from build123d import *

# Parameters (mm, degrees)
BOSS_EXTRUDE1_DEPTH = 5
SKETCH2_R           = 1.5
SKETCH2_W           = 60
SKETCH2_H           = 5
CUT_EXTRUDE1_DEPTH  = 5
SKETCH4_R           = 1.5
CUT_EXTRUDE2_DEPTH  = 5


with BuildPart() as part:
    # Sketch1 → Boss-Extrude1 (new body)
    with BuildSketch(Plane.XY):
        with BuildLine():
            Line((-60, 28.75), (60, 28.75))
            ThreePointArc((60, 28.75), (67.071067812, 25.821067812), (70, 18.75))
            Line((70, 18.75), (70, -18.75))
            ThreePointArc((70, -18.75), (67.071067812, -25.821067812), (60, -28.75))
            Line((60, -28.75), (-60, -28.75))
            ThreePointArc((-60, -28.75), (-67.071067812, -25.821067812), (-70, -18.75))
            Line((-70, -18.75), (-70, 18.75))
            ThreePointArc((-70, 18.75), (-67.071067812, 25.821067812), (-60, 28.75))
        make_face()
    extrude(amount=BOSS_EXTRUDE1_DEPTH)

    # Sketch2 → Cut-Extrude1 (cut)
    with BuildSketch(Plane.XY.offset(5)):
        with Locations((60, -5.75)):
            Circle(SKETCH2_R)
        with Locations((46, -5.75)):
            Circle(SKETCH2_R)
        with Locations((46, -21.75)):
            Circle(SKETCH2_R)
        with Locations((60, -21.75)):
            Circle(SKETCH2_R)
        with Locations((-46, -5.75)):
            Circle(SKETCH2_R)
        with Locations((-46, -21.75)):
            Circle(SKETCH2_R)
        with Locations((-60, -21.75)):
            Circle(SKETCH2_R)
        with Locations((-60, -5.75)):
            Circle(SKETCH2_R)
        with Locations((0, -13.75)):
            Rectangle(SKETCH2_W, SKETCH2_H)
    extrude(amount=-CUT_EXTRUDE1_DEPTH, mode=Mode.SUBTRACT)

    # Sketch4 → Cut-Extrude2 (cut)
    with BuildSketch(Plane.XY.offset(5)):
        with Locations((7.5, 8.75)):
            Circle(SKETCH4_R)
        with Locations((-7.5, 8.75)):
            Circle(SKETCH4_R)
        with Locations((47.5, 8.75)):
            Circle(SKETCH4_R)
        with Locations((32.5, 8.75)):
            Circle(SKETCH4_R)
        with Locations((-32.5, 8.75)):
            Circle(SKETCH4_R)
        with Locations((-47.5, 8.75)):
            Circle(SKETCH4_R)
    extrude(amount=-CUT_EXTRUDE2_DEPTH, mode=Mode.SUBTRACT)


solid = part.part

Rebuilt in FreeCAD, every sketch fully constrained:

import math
import FreeCAD as App
import Part
import Sketcher
from FreeCAD import Vector
Q = App.Units.Quantity

doc = App.newDocument("Part")
params = doc.addObject("Spreadsheet::Sheet", "Params")
for row, (alias, value) in enumerate([
    ("sketch1_radius", "10 mm"),
    ("sketch1_width", "120 mm"),
    ("sketch1_height", "37.5 mm"),
    ("pad1_length", "5 mm"),
    ("sketch2_diameter", "3 mm"),
    ("sketch2_width", "60 mm"),
    ("sketch2_height", "5 mm"),
    ("pocket1_length", "5 mm"),
    ("sketch3_diameter", "3 mm"),
    ("pocket2_length", "5 mm"),
], start=1):
    params.set(f"A{row}", alias)
    params.set(f"B{row}", "=" + value)
    params.setAlias(f"B{row}", alias)

body = doc.addObject("PartDesign::Body", "Body")

# Sketch on XY plane
sketch1 = body.newObject("Sketcher::SketchObject", "Sketch")
sketch1.AttachmentSupport = (doc.getObject("XY_Plane"), [""])
sketch1.MapMode = "FlatFace"
sketch1.addGeometry([
    Part.LineSegment(Vector(60, 29, 0), Vector(-60, 29, 0)),  # 0
    Part.ArcOfCircle(Part.Circle(Vector(-60, 19, 0), Vector(0, 0, 1), 10), math.radians(90), math.radians(180)),  # 1
    Part.LineSegment(Vector(-70, 19, 0), Vector(-70, -19, 0)),  # 2
    Part.ArcOfCircle(Part.Circle(Vector(-60, -19, 0), Vector(0, 0, 1), 10), math.radians(180), math.radians(270)),  # 3
    Part.LineSegment(Vector(-60, -29, 0), Vector(60, -29, 0)),  # 4
    Part.ArcOfCircle(Part.Circle(Vector(60, -19, 0), Vector(0, 0, 1), 10), math.radians(-90), math.radians(0)),  # 5
    Part.LineSegment(Vector(70, -19, 0), Vector(70, 19, 0)),  # 6
    Part.ArcOfCircle(Part.Circle(Vector(60, 19, 0), Vector(0, 0, 1), 10), math.radians(0), math.radians(90)),  # 7
], False)
sketch1.addConstraint([
    Sketcher.Constraint("Tangent", 0, 2, 1, 1),
    Sketcher.Constraint("Tangent", 1, 2, 2, 1),
    Sketcher.Constraint("Tangent", 2, 2, 3, 1),
    Sketcher.Constraint("Tangent", 3, 2, 4, 1),
    Sketcher.Constraint("Tangent", 4, 2, 5, 1),
    Sketcher.Constraint("Tangent", 5, 2, 6, 1),
    Sketcher.Constraint("Tangent", 6, 2, 7, 1),
    Sketcher.Constraint("Tangent", 7, 2, 0, 1),
    Sketcher.Constraint("Horizontal", 0),
    Sketcher.Constraint("Vertical", 2),
    Sketcher.Constraint("Horizontal", 4),
    Sketcher.Constraint("Vertical", 6),
    Sketcher.Constraint("Equal", 1, 3),
    Sketcher.Constraint("Equal", 3, 5),
    Sketcher.Constraint("Equal", 5, 7),
    Sketcher.Constraint("Symmetric", 1, 3, 5, 3, -1, 1),
    Sketcher.Constraint("Radius", 1, Q("10 mm")),
    Sketcher.Constraint("DistanceX", 0, 2, 0, 1, Q("120 mm")),
    Sketcher.Constraint("DistanceY", 2, 2, 2, 1, Q("37.5 mm")),
])
sketch1.setExpression("Constraints[16]", "Params.sketch1_radius")
sketch1.setExpression("Constraints[17]", "Params.sketch1_width")
sketch1.setExpression("Constraints[18]", "Params.sketch1_height")
pad1 = body.newObject("PartDesign::Pad", "Pad")
pad1.Profile = sketch1
pad1.setExpression("Length", "Params.pad1_length")

# Sketch on XY plane
sketch2 = body.newObject("Sketcher::SketchObject", "Sketch001")
sketch2.AttachmentSupport = (doc.getObject("XY_Plane"), [""])
sketch2.MapMode = "FlatFace"
sketch2.AttachmentOffset = App.Placement(Vector(0, 0, 5), App.Rotation())
sketch2.addGeometry([
    Part.Circle(Vector(60, -5.8, 0), Vector(0, 0, 1), 1.5),  # 0
    Part.Circle(Vector(46, -5.8, 0), Vector(0, 0, 1), 1.5),  # 1
    Part.Circle(Vector(46, -21.8, 0), Vector(0, 0, 1), 1.5),  # 2
    Part.Circle(Vector(60, -21.8, 0), Vector(0, 0, 1), 1.5),  # 3
    Part.Circle(Vector(-46, -5.8, 0), Vector(0, 0, 1), 1.5),  # 4
    Part.Circle(Vector(-46, -21.8, 0), Vector(0, 0, 1), 1.5),  # 5
    Part.Circle(Vector(-60, -21.8, 0), Vector(0, 0, 1), 1.5),  # 6
    Part.Circle(Vector(-60, -5.8, 0), Vector(0, 0, 1), 1.5),  # 7
    Part.LineSegment(Vector(-30, -11.2, 0), Vector(-30, -16.2, 0)),  # 8
    Part.LineSegment(Vector(-30, -16.2, 0), Vector(30, -16.2, 0)),  # 9
    Part.LineSegment(Vector(30, -16.2, 0), Vector(30, -11.2, 0)),  # 10
    Part.LineSegment(Vector(30, -11.2, 0), Vector(-30, -11.2, 0)),  # 11
], False)
sketch2.addConstraint([
    Sketcher.Constraint("Coincident", 8, 2, 9, 1),
    Sketcher.Constraint("Coincident", 9, 2, 10, 1),
    Sketcher.Constraint("Coincident", 10, 2, 11, 1),
    Sketcher.Constraint("Coincident", 11, 2, 8, 1),
    Sketcher.Constraint("Vertical", 8),
    Sketcher.Constraint("Horizontal", 9),
    Sketcher.Constraint("Vertical", 10),
    Sketcher.Constraint("Horizontal", 11),
    Sketcher.Constraint("Equal", 0, 1),
    Sketcher.Constraint("Equal", 1, 2),
    Sketcher.Constraint("Equal", 2, 3),
    Sketcher.Constraint("Equal", 3, 4),
    Sketcher.Constraint("Equal", 4, 5),
    Sketcher.Constraint("Equal", 5, 6),
    Sketcher.Constraint("Equal", 6, 7),
    Sketcher.Constraint("Symmetric", 1, 3, 4, 3, -2),
    Sketcher.Constraint("Symmetric", 2, 3, 5, 3, -2),
    Sketcher.Constraint("Symmetric", 3, 3, 6, 3, -2),
    Sketcher.Constraint("Symmetric", 0, 3, 7, 3, -2),
    Sketcher.Constraint("Horizontal", 0, 3, 1, 3),
    Sketcher.Constraint("Horizontal", 2, 3, 3, 3),
    Sketcher.Constraint("Vertical", 1, 3, 2, 3),
    Sketcher.Constraint("Vertical", 0, 3, 3, 3),
    Sketcher.Constraint("Diameter", 0, Q("3 mm")),
    Sketcher.Constraint("DistanceX", 9, 1, 9, 2, Q("60 mm")),
    Sketcher.Constraint("DistanceY", 8, 2, 8, 1, Q("5 mm")),
    Sketcher.Constraint("DistanceX", -1, 1, 0, 3, Q("60 mm")),
    Sketcher.Constraint("DistanceX", -1, 1, 1, 3, Q("46 mm")),
    Sketcher.Constraint("DistanceX", 8, 2, -1, 1, Q("30 mm")),
    Sketcher.Constraint("DistanceY", 2, 3, 1, 3, Q("16 mm")),
    Sketcher.Constraint("DistanceY", 5, 3, 8, 2, Q("5.5 mm")),
    Sketcher.Constraint("DistanceY", 0, 3, -1, 1, Q("5.75 mm")),
])
sketch2.setExpression("Constraints[23]", "Params.sketch2_diameter")
sketch2.setExpression("Constraints[24]", "Params.sketch2_width")
sketch2.setExpression("Constraints[25]", "Params.sketch2_height")
pocket1 = body.newObject("PartDesign::Pocket", "Pocket")
pocket1.Profile = sketch2
pocket1.setExpression("Length", "Params.pocket1_length")

# Sketch on XY plane
sketch3 = body.newObject("Sketcher::SketchObject", "Sketch002")
sketch3.AttachmentSupport = (doc.getObject("XY_Plane"), [""])
sketch3.MapMode = "FlatFace"
sketch3.AttachmentOffset = App.Placement(Vector(0, 0, 5), App.Rotation())
sketch3.addGeometry([
    Part.Circle(Vector(7.5, 8.8, 0), Vector(0, 0, 1), 1.5),  # 0
    Part.Circle(Vector(-7.5, 8.8, 0), Vector(0, 0, 1), 1.5),  # 1
    Part.Circle(Vector(47.5, 8.8, 0), Vector(0, 0, 1), 1.5),  # 2
    Part.Circle(Vector(32.5, 8.8, 0), Vector(0, 0, 1), 1.5),  # 3
    Part.Circle(Vector(-32.5, 8.8, 0), Vector(0, 0, 1), 1.5),  # 4
    Part.Circle(Vector(-47.5, 8.8, 0), Vector(0, 0, 1), 1.5),  # 5
], False)
sketch3.addConstraint([
    Sketcher.Constraint("Equal", 0, 1),
    Sketcher.Constraint("Equal", 1, 2),
    Sketcher.Constraint("Equal", 2, 3),
    Sketcher.Constraint("Equal", 3, 4),
    Sketcher.Constraint("Equal", 4, 5),
    Sketcher.Constraint("Symmetric", 0, 3, 1, 3, -2),
    Sketcher.Constraint("Symmetric", 3, 3, 4, 3, -2),
    Sketcher.Constraint("Symmetric", 2, 3, 5, 3, -2),
    Sketcher.Constraint("Horizontal", 1, 3, 2, 3),
    Sketcher.Constraint("Horizontal", 2, 3, 3, 3),
    Sketcher.Constraint("Diameter", 0, Q("3 mm")),
    Sketcher.Constraint("DistanceX", 1, 3, 0, 3, Q("15 mm")),
    Sketcher.Constraint("DistanceX", 0, 3, 2, 3, Q("40 mm")),
    Sketcher.Constraint("DistanceX", 3, 3, 2, 3, Q("15 mm")),
    Sketcher.Constraint("DistanceY", -1, 1, 0, 3, Q("8.75 mm")),
])
sketch3.setExpression("Constraints[10]", "Params.sketch3_diameter")
pocket2 = body.newObject("PartDesign::Pocket", "Pocket001")
pocket2.Profile = sketch3
pocket2.setExpression("Length", "Params.pocket2_length")

doc.recompute()
